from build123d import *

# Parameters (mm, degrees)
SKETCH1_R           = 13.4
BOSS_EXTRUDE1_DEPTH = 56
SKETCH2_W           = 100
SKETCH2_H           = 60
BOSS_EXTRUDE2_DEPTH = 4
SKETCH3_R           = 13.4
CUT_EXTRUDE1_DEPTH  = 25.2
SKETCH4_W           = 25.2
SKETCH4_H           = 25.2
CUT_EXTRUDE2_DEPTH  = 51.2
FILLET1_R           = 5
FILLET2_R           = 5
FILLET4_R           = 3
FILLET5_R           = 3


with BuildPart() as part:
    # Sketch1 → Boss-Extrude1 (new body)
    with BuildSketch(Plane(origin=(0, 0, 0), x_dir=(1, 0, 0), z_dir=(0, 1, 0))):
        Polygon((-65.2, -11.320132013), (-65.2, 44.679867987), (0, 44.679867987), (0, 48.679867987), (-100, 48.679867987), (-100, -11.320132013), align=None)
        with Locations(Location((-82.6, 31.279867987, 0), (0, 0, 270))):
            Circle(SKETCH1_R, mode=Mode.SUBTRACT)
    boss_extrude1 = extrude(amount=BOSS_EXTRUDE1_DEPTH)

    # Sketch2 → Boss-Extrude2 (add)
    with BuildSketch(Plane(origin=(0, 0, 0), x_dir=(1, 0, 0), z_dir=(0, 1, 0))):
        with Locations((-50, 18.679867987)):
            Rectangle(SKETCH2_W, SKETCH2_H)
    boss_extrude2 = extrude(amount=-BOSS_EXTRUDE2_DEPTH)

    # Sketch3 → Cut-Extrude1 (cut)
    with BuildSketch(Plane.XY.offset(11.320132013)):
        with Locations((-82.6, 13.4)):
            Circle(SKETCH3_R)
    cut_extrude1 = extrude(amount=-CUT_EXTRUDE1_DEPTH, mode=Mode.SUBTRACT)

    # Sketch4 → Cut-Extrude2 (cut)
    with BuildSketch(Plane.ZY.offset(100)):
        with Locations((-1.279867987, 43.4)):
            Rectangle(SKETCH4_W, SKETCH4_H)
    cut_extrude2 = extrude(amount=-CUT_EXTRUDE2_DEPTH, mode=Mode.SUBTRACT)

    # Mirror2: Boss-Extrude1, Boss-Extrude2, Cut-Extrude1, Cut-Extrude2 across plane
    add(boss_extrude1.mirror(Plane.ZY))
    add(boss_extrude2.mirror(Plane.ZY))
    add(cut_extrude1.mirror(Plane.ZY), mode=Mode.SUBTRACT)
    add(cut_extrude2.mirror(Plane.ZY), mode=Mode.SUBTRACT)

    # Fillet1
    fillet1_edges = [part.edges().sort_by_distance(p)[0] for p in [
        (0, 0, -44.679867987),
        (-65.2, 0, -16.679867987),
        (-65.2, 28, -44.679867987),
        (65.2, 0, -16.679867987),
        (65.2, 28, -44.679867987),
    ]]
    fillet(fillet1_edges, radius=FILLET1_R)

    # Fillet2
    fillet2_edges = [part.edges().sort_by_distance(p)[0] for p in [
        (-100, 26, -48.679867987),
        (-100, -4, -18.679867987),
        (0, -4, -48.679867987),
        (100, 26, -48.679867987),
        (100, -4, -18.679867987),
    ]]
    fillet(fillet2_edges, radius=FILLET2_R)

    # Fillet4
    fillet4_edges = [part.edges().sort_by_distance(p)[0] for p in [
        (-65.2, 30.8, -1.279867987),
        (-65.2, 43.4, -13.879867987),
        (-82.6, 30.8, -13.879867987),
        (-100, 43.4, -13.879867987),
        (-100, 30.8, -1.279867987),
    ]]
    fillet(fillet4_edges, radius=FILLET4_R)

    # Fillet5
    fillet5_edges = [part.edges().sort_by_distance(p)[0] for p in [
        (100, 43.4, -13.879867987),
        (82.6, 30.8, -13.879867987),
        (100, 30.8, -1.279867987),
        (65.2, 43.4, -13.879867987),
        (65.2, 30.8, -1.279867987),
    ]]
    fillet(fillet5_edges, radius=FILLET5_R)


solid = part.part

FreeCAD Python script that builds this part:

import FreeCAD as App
import Part
import Sketcher
Q = App.Units.Quantity


def edges_at(feature, points):
    """Names of the edges that pass closest to the given points."""
    edges = feature.Shape.Edges
    near = lambda p: min(range(len(edges)), key=lambda i: edges[i].distToShape(Part.Vertex(*p))[0])
    return sorted({f"Edge{near(p) + 1}" for p in points})

doc = App.newDocument("Part")
body = doc.addObject("PartDesign::Body", "Body")

# Sketch on XZ plane
sketch1 = body.newObject("Sketcher::SketchObject", "Sketch")
sketch1.AttachmentSupport = (doc.getObject("XZ_Plane"), [""])
sketch1.MapMode = "FlatFace"
sketch1.addGeometry(Part.LineSegment(App.Vector(-65.2, 11.3, 0), App.Vector(-65.2, -44.7, 0)), False)
sketch1.addGeometry(Part.LineSegment(App.Vector(-65.2, -44.7, 0), App.Vector(0, -44.7, 0)), False)
sketch1.addGeometry(Part.LineSegment(App.Vector(0, -44.7, 0), App.Vector(0, -48.7, 0)), False)
sketch1.addGeometry(Part.LineSegment(App.Vector(0, -48.7, 0), App.Vector(-100, -48.7, 0)), False)
sketch1.addGeometry(Part.LineSegment(App.Vector(-100, -48.7, 0), App.Vector(-100, 11.3, 0)), False)
sketch1.addGeometry(Part.LineSegment(App.Vector(-100, 11.3, 0), App.Vector(-65.2, 11.3, 0)), False)
sketch1.addGeometry(Part.Circle(App.Vector(-82.6, -31.3, 0), App.Vector(0, 0, 1), 13.4), False)
sketch1.addConstraint(Sketcher.Constraint("Coincident", 0, 2, 1, 1))
sketch1.addConstraint(Sketcher.Constraint("Coincident", 1, 2, 2, 1))
sketch1.addConstraint(Sketcher.Constraint("Coincident", 2, 2, 3, 1))
sketch1.addConstraint(Sketcher.Constraint("Coincident", 3, 2, 4, 1))
sketch1.addConstraint(Sketcher.Constraint("Coincident", 4, 2, 5, 1))
sketch1.addConstraint(Sketcher.Constraint("Coincident", 5, 2, 0, 1))
sketch1.addConstraint(Sketcher.Constraint("Vertical", 0))
sketch1.addConstraint(Sketcher.Constraint("Horizontal", 1))
sketch1.addConstraint(Sketcher.Constraint("Vertical", 2))
sketch1.addConstraint(Sketcher.Constraint("Horizontal", 3))
sketch1.addConstraint(Sketcher.Constraint("Vertical", 4))
sketch1.addConstraint(Sketcher.Constraint("Horizontal", 5))
sketch1.addConstraint(Sketcher.Constraint("PointOnObject", 1, 2, -2))
sketch1.addConstraint(Sketcher.Constraint("Diameter", 6, Q("26.8 mm")))
sketch1.addConstraint(Sketcher.Constraint("DistanceX", 3, 2, 3, 1, Q("100 mm")))
sketch1.addConstraint(Sketcher.Constraint("DistanceY", 0, 2, 0, 1, Q("56 mm")))
sketch1.addConstraint(Sketcher.Constraint("DistanceY", 2, 2, 2, 1, Q("4 mm")))
sketch1.addConstraint(Sketcher.Constraint("DistanceX", 1, 1, 1, 2, Q("65.2 mm")))
sketch1.addConstraint(Sketcher.Constraint("DistanceX", 6, 3, -1, 1, Q("82.6 mm")))
sketch1.addConstraint(Sketcher.Constraint("DistanceY", 0, 2, 6, 3, Q("13.4 mm")))
sketch1.addConstraint(Sketcher.Constraint("DistanceY", 6, 3, -1, 1, Q("31.279868 mm")))
pad1 = body.newObject("PartDesign::Pad", "Pad")
pad1.Profile = sketch1
pad1.Length = 56
pad1.Reversed = True

# Sketch on XZ plane
sketch2 = body.newObject("Sketcher::SketchObject", "Sketch001")
sketch2.AttachmentSupport = (doc.getObject("XZ_Plane"), [""])
sketch2.MapMode = "FlatFace"
sketch2.addGeometry(Part.LineSegment(App.Vector(-100, -49, 0), App.Vector(-100, 11, 0)), False)
sketch2.addGeometry(Part.LineSegment(App.Vector(-100, 11, 0), App.Vector(0, 11, 0)), False)
sketch2.addGeometry(Part.LineSegment(App.Vector(0, 11, 0), App.Vector(0, -49, 0)), False)
sketch2.addGeometry(Part.LineSegment(App.Vector(0, -49, 0), App.Vector(-100, -49, 0)), False)
sketch2.addConstraint(Sketcher.Constraint("Coincident", 0, 2, 1, 1))
sketch2.addConstraint(Sketcher.Constraint("Coincident", 1, 2, 2, 1))
sketch2.addConstraint(Sketcher.Constraint("Coincident", 2, 2, 3, 1))
sketch2.addConstraint(Sketcher.Constraint("Coincident", 3, 2, 0, 1))
sketch2.addConstraint(Sketcher.Constraint("Vertical", 0))
sketch2.addConstraint(Sketcher.Constraint("Horizontal", 1))
sketch2.addConstraint(Sketcher.Constraint("Vertical", 2))
sketch2.addConstraint(Sketcher.Constraint("Horizontal", 3))
sketch2.addConstraint(Sketcher.Constraint("PointOnObject", 1, 2, -2))
sketch2.addConstraint(Sketcher.Constraint("DistanceX", 1, 1, 1, 2, Q("100 mm")))
sketch2.addConstraint(Sketcher.Constraint("DistanceY", 0, 1, 0, 2, Q("60 mm")))
sketch2.addConstraint(Sketcher.Constraint("DistanceY", -1, 1, 0, 2, Q("11.320132 mm")))
pad2 = body.newObject("PartDesign::Pad", "Pad001")
pad2.Profile = sketch2
pad2.Length = 4

# Sketch on XY plane
sketch3 = body.newObject("Sketcher::SketchObject", "Sketch002")
sketch3.AttachmentSupport = (doc.getObject("XY_Plane"), [""])
sketch3.MapMode = "FlatFace"
sketch3.AttachmentOffset = App.Placement(App.Vector(0, 0, 11.320132), App.Rotation())
sketch3.addGeometry(Part.Circle(App.Vector(-83, 13, 0), App.Vector(0, 0, 1), 13), False)
sketch3.addConstraint(Sketcher.Constraint("Diameter", 0, Q("26.8 mm")))
sketch3.addConstraint(Sketcher.Constraint("DistanceX", 0, 3, -1, 1, Q("82.6 mm")))
sketch3.addConstraint(Sketcher.Constraint("DistanceY", -1, 1, 0, 3, Q("13.4 mm")))
pocket1 = body.newObject("PartDesign::Pocket", "Pocket")
pocket1.Profile = sketch3
pocket1.Length = 25.2

# Sketch on YZ plane
sketch4 = body.newObject("Sketcher::SketchObject", "Sketch003")
sketch4.AttachmentSupport = (doc.getObject("YZ_Plane"), [""])
sketch4.MapMode = "FlatFace"
sketch4.AttachmentOffset = App.Placement(App.Vector(0, 0, -100), App.Rotation())
sketch4.addGeometry(Part.LineSegment(App.Vector(56, -14, 0), App.Vector(31, -14, 0)), False)
sketch4.addGeometry(Part.LineSegment(App.Vector(31, -14, 0), App.Vector(31, 11, 0)), False)
sketch4.addGeometry(Part.LineSegment(App.Vector(31, 11, 0), App.Vector(56, 11, 0)), False)
sketch4.addGeometry(Part.LineSegment(App.Vector(56, 11, 0), App.Vector(56, -14, 0)), False)
sketch4.addConstraint(Sketcher.Constraint("Coincident", 0, 2, 1, 1))
sketch4.addConstraint(Sketcher.Constraint("Coincident", 1, 2, 2, 1))
sketch4.addConstraint(Sketcher.Constraint("Coincident", 2, 2, 3, 1))
sketch4.addConstraint(Sketcher.Constraint("Coincident", 3, 2, 0, 1))
sketch4.addConstraint(Sketcher.Constraint("Horizontal", 0))
sketch4.addConstraint(Sketcher.Constraint("Vertical", 1))
sketch4.addConstraint(Sketcher.Constraint("Horizontal", 2))
sketch4.addConstraint(Sketcher.Constraint("Vertical", 3))
sketch4.addConstraint(Sketcher.Constraint("Equal", 2, 1))
sketch4.addConstraint(Sketcher.Constraint("DistanceX", 0, 2, 0, 1, Q("25.2 mm")))
sketch4.addConstraint(Sketcher.Constraint("DistanceX", -1, 1, 2, 2, Q("56 mm")))
sketch4.addConstraint(Sketcher.Constraint("DistanceY", 0, 2, -1, 1, Q("13.879868 mm")))
pocket2 = body.newObject("PartDesign::Pocket", "Pocket001")
pocket2.Profile = sketch4
pocket2.Length = 51.2
pocket2.Reversed = True
doc.recompute()

mirrored = body.newObject("PartDesign::Mirrored", "Mirrored")
mirrored.Originals = [pad1, pad2, pocket1, pocket2]
mirrored.MirrorPlane = (doc.getObject("YZ_Plane"), [""])
body.Tip = mirrored
doc.recompute()

fillet = body.newObject("PartDesign::Fillet", "Fillet")
fillet.Base = (mirrored, edges_at(mirrored, [
    (0, 0, -44.68),
    (-65.2, 0, -16.68),
    (-65.2, 28, -44.68),
    (65.2, 0, -16.68),
    (65.2, 28, -44.68),
]))
fillet.Radius = 5
doc.recompute()

fillet2 = body.newObject("PartDesign::Fillet", "Fillet001")
fillet2.Base = (fillet, edges_at(fillet, [
    (-100, 26, -48.68),
    (-100, -4, -18.68),
    (0, -4, -48.68),
    (100, 26, -48.68),
    (100, -4, -18.68),
]))
fillet2.Radius = 5
doc.recompute()

fillet3 = body.newObject("PartDesign::Fillet", "Fillet002")
fillet3.Base = (fillet2, edges_at(fillet2, [
    (-65.2, 30.8, -1.28),
    (-65.2, 43.4, -13.88),
    (-82.6, 30.8, -13.88),
    (-100, 43.4, -13.88),
    (-100, 30.8, -1.28),
]))
fillet3.Radius = 3
doc.recompute()

fillet4 = body.newObject("PartDesign::Fillet", "Fillet003")
fillet4.Base = (fillet3, edges_at(fillet3, [
    (100, 43.4, -13.88),
    (82.6, 30.8, -13.88),
    (100, 30.8, -1.28),
    (65.2, 43.4, -13.88),
    (65.2, 30.8, -1.28),
]))
fillet4.Radius = 3

doc.recompute()
